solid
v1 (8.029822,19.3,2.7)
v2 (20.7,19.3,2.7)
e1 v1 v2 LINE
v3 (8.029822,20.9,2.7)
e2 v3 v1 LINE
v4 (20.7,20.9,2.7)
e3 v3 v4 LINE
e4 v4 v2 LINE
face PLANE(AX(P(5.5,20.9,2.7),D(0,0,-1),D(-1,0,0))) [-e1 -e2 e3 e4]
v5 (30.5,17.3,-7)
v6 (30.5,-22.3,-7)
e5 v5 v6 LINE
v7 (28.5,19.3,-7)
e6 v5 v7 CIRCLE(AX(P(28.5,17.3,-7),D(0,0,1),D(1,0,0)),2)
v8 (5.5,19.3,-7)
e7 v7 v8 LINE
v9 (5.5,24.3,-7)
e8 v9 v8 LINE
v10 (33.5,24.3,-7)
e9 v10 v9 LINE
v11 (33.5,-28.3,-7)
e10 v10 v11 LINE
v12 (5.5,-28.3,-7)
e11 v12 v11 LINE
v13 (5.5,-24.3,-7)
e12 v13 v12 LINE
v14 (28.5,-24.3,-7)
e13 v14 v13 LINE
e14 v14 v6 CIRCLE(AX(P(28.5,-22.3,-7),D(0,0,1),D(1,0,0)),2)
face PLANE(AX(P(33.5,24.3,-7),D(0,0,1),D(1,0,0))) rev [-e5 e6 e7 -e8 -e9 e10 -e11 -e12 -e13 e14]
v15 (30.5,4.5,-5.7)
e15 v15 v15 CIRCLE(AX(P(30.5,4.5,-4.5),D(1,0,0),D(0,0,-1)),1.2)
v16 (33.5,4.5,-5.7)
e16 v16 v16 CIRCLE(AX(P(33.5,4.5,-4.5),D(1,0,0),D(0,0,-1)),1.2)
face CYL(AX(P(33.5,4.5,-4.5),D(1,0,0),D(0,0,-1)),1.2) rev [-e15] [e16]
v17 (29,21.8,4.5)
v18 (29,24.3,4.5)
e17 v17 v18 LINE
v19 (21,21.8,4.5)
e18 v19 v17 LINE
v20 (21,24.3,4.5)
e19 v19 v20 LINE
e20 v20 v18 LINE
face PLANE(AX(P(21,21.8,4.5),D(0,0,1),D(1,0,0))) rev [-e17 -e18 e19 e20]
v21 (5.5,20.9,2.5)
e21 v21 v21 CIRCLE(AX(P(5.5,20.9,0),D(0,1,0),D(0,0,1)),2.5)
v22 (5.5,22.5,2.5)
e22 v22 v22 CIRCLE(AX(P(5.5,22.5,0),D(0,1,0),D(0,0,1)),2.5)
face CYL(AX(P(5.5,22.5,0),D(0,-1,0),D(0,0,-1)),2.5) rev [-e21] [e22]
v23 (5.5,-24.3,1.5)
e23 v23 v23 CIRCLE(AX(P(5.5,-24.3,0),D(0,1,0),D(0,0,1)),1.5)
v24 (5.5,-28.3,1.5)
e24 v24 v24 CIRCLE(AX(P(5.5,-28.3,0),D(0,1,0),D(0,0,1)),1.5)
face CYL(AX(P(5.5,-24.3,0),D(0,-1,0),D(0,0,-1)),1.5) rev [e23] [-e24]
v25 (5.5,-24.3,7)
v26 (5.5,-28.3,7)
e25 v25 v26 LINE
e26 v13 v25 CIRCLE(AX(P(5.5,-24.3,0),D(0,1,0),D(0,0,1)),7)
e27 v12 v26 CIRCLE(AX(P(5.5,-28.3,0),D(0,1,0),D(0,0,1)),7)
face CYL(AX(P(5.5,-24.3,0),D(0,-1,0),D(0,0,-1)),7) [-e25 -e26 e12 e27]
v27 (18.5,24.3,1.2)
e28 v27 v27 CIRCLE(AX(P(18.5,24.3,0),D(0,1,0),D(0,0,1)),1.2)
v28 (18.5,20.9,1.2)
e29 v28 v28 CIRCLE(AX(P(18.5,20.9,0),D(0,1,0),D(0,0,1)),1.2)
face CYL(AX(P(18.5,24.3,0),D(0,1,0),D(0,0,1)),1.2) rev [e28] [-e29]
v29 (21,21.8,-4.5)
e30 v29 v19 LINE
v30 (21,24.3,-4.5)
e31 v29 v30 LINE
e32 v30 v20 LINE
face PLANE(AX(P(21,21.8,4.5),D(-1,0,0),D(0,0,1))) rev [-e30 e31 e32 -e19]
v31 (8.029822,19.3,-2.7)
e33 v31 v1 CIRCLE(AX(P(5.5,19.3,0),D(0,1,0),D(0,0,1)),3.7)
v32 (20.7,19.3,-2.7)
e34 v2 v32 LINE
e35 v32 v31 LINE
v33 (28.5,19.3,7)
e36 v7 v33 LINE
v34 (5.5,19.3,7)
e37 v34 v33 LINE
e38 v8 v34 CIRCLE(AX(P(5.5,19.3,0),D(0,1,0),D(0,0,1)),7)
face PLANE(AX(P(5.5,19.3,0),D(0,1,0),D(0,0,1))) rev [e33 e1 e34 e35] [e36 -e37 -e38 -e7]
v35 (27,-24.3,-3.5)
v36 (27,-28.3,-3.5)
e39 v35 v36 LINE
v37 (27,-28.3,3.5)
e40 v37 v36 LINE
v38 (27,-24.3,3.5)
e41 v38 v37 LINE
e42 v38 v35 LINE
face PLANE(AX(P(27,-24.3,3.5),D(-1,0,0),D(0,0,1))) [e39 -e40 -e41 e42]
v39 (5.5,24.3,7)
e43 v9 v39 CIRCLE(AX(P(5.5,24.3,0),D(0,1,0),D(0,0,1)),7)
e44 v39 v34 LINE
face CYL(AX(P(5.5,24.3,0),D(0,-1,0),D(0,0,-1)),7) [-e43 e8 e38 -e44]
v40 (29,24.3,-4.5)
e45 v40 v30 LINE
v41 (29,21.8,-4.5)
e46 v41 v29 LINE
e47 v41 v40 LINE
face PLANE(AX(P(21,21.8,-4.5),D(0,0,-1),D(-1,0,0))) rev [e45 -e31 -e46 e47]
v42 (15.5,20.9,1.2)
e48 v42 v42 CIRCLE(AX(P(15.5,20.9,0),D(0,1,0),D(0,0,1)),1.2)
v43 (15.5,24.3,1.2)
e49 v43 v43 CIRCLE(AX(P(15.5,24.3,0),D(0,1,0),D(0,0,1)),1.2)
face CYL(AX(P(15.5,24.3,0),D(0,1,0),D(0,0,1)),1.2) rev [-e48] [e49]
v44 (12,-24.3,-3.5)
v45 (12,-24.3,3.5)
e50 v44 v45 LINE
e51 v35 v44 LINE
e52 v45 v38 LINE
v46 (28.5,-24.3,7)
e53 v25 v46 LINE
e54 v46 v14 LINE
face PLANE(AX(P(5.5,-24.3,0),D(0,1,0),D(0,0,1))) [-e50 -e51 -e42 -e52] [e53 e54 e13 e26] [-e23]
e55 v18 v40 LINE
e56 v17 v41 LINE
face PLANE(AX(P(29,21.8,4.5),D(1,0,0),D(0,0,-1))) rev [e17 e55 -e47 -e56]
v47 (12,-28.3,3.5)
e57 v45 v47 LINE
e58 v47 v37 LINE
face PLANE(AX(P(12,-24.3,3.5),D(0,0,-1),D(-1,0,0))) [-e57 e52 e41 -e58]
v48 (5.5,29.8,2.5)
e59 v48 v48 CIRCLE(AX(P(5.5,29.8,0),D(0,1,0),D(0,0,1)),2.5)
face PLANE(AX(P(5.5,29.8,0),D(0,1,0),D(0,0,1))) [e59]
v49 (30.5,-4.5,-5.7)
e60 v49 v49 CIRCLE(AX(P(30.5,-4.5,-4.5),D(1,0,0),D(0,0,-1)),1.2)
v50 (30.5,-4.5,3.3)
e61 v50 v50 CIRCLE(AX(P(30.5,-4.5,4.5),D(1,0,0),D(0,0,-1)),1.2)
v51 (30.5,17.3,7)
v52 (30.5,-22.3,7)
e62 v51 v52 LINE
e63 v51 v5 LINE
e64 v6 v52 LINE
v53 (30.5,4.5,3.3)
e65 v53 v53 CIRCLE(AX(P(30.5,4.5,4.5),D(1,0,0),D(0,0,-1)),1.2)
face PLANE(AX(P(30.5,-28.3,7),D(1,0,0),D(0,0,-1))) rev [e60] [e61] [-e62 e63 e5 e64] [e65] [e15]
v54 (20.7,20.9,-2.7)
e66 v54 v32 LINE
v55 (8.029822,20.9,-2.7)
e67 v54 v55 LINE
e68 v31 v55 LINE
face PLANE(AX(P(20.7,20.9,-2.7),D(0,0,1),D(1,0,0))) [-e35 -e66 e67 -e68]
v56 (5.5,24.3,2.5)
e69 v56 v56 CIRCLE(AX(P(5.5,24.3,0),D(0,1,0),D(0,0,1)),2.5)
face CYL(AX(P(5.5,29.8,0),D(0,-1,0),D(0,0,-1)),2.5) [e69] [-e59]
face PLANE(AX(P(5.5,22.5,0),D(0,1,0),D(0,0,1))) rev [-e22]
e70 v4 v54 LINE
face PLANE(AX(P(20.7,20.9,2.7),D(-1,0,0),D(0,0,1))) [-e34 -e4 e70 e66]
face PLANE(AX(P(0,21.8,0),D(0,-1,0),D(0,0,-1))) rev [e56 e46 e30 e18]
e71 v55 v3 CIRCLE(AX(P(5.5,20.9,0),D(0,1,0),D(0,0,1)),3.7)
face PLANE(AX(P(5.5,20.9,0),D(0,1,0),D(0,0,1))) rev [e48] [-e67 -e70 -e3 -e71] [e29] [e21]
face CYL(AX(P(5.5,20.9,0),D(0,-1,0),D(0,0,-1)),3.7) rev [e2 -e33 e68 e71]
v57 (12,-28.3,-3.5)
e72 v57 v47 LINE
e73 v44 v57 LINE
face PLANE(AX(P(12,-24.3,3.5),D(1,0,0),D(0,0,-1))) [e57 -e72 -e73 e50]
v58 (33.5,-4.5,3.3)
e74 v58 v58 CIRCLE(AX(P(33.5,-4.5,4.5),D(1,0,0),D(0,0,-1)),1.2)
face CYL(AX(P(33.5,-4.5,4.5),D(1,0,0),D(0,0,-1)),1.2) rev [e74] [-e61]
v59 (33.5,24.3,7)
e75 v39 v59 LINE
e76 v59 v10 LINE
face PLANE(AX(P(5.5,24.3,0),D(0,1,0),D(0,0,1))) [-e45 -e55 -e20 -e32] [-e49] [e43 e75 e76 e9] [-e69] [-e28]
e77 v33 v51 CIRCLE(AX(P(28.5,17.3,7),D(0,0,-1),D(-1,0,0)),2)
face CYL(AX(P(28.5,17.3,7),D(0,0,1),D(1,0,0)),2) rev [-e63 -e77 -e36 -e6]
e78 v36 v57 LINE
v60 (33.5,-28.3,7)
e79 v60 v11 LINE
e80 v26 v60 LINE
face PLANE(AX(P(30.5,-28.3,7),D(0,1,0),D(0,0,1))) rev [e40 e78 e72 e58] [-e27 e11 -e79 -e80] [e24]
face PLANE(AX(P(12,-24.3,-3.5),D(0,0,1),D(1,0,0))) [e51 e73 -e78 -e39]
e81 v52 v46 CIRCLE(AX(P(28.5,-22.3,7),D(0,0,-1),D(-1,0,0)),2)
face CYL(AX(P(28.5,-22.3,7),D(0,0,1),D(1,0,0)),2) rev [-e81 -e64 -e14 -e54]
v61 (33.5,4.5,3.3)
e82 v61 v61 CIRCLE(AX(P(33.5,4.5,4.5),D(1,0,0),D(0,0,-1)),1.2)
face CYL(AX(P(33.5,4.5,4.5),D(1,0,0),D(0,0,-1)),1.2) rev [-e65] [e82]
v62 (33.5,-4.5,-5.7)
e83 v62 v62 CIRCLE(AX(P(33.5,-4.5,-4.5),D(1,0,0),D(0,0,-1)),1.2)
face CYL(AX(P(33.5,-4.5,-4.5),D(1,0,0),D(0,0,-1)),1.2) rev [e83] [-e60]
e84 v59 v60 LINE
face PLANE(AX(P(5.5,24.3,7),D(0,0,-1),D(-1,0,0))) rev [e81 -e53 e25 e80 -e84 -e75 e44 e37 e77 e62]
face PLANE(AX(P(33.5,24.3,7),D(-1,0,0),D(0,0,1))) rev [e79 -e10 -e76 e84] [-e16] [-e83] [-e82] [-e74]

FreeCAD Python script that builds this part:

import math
import FreeCAD as App
import Part
import Sketcher
from FreeCAD import Vector


def edges_at(feature, points):
    """Names of the edges that pass closest to the given points."""
    edges = feature.Shape.Edges
    near = lambda p: min(range(len(edges)), key=lambda i: edges[i].distToShape(Part.Vertex(*p))[0])
    return sorted({f"Edge{near(p) + 1}" for p in points})

doc = App.newDocument("Part")
body = doc.addObject("PartDesign::Body", "Body")

# Sketch on XZ plane
sketch1 = body.newObject("Sketcher::SketchObject", "Sketch")
sketch1.AttachmentSupport = (doc.getObject("XZ_Plane"), [""])
sketch1.MapMode = "FlatFace"
sketch1.AttachmentOffset = App.Placement(Vector(0, 0, -19.3), App.Rotation())
sketch1.addGeometry([
    Part.LineSegment(Vector(6, 7, 0), Vector(34, 7, 0)),
    Part.LineSegment(Vector(34, 7, 0), Vector(34, -7, 0)),
    Part.LineSegment(Vector(34, -7, 0), Vector(6, -7, 0)),
    Part.ArcOfCircle(Part.Circle(Vector(6, 0, 0), Vector(0, 0, 1), 7), math.radians(90), math.radians(270)),
], False)
sketch1.addConstraint([
    Sketcher.Constraint("Coincident", 0, 2, 1, 1),
    Sketcher.Constraint("Coincident", 1, 2, 2, 1),
    Sketcher.Constraint("Tangent", 2, 2, 3, 2),
    Sketcher.Constraint("Tangent", 3, 1, 0, 1),
    Sketcher.Constraint("Horizontal", 0),
    Sketcher.Constraint("Vertical", 1),
    Sketcher.Constraint("Horizontal", 2),
    Sketcher.Constraint("PointOnObject", 3, 3, -1),
    Sketcher.Constraint("Radius", 3, 7.0),
    Sketcher.Constraint("DistanceX", 0, 1, 0, 2, 28.0),
    Sketcher.Constraint("DistanceX", -1, 1, 3, 3, 5.5),
])
pad1 = body.newObject("PartDesign::Pad", "Pad")
pad1.Profile = sketch1
pad1.Length = 5
pad1.Reversed = True
body2 = doc.addObject("PartDesign::Body", "Body001")

# Sketch on XZ plane
sketch2 = body2.newObject("Sketcher::SketchObject", "Sketch001")
sketch2.AttachmentSupport = (doc.getObject("XZ_Plane001"), [""])
sketch2.MapMode = "FlatFace"
sketch2.AttachmentOffset = App.Placement(Vector(0, 0, 28.3), App.Rotation())
sketch2.addGeometry([
    Part.LineSegment(Vector(6, 7, 0), Vector(34, 7, 0)),
    Part.LineSegment(Vector(34, 7, 0), Vector(34, -7, 0)),
    Part.LineSegment(Vector(34, -7, 0), Vector(6, -7, 0)),
    Part.ArcOfCircle(Part.Circle(Vector(6, 0, 0), Vector(0, 0, 1), 7), math.radians(90), math.radians(270)),
], False)
sketch2.addConstraint([
    Sketcher.Constraint("Coincident", 0, 2, 1, 1),
    Sketcher.Constraint("Coincident", 1, 2, 2, 1),
    Sketcher.Constraint("Tangent", 2, 2, 3, 2),
    Sketcher.Constraint("Tangent", 3, 1, 0, 1),
    Sketcher.Constraint("Horizontal", 0),
    Sketcher.Constraint("Vertical", 1),
    Sketcher.Constraint("Horizontal", 2),
    Sketcher.Constraint("PointOnObject", 3, 3, -1),
    Sketcher.Constraint("Radius", 3, 7.0),
    Sketcher.Constraint("DistanceX", 0, 1, 0, 2, 28.0),
    Sketcher.Constraint("DistanceX", -1, 1, 3, 3, 5.5),
])
pad2 = body2.newObject("PartDesign::Pad", "Pad001")
pad2.Profile = sketch2
pad2.Length = 4
pad2.Reversed = True
body.AllowCompound = True
doc.recompute()

boolean = body.newObject("PartDesign::Boolean", "Boolean")
boolean.Type = "Fuse"
boolean.addObjects([body2])

# Sketch on XY plane
sketch3 = body.newObject("Sketcher::SketchObject", "Sketch002")
sketch3.AttachmentSupport = (doc.getObject("XY_Plane"), [""])
sketch3.MapMode = "FlatFace"
sketch3.addGeometry([
    Part.LineSegment(Vector(30.5, 24.3, 0), Vector(30.5, -28.3, 0)),
    Part.LineSegment(Vector(30.5, -28.3, 0), Vector(33.5, -28.3, 0)),
    Part.LineSegment(Vector(33.5, -28.3, 0), Vector(33.5, 24.3, 0)),
    Part.LineSegment(Vector(33.5, 24.3, 0), Vector(30.5, 24.3, 0)),
], False)
sketch3.addConstraint([
    Sketcher.Constraint("Coincident", 0, 2, 1, 1),
    Sketcher.Constraint("Coincident", 1, 2, 2, 1),
    Sketcher.Constraint("Coincident", 2, 2, 3, 1),
    Sketcher.Constraint("Coincident", 3, 2, 0, 1),
    Sketcher.Constraint("Vertical", 0),
    Sketcher.Constraint("Horizontal", 1),
    Sketcher.Constraint("Vertical", 2),
    Sketcher.Constraint("Horizontal", 3),
    Sketcher.Constraint("DistanceX", 1, 1, 1, 2, 3.0),
    Sketcher.Constraint("DistanceY", 0, 2, 0, 1, 52.6),
    Sketcher.Constraint("DistanceX", -1, 1, 0, 2, 30.5),
    Sketcher.Constraint("DistanceY", 0, 2, -1, 1, 28.3),
])
pad3 = body.newObject("PartDesign::Pad", "Pad002")
pad3.Profile = sketch3
pad3.Length = 14
pad3.Midplane = True

# Sketch on XZ plane
sketch4 = body.newObject("Sketcher::SketchObject", "Sketch003")
sketch4.AttachmentSupport = (doc.getObject("XZ_Plane"), [""])
sketch4.MapMode = "FlatFace"
sketch4.AttachmentOffset = App.Placement(Vector(0, 0, -24.3), App.Rotation())
sketch4.addGeometry(Part.Circle(Vector(5.5, 0, 0), Vector(0, 0, 1), 2.5), False)
sketch4.addConstraint([
    Sketcher.Constraint("PointOnObject", 0, 3, -1),
    Sketcher.Constraint("Diameter", 0, 5.0),
    Sketcher.Constraint("DistanceX", -1, 1, 0, 3, 5.5),
])
pad4 = body.newObject("PartDesign::Pad", "Pad003")
pad4.Profile = sketch4
pad4.Length = 5.5
pad4.Reversed = True

# Sketch on XZ plane
sketch5 = body.newObject("Sketcher::SketchObject", "Sketch004")
sketch5.AttachmentSupport = (doc.getObject("XZ_Plane"), [""])
sketch5.MapMode = "FlatFace"
sketch5.AttachmentOffset = App.Placement(Vector(0, 0, -19.3), App.Rotation())
sketch5.addGeometry(Part.Circle(Vector(5.5, 0, 0), Vector(0, 0, 1), 3.7), False)
sketch5.addConstraint([
    Sketcher.Constraint("PointOnObject", 0, 3, -1),
    Sketcher.Constraint("Diameter", 0, 7.4),
    Sketcher.Constraint("DistanceX", -1, 1, 0, 3, 5.5),
])
pocket1 = body.newObject("PartDesign::Pocket", "Pocket")
pocket1.Profile = sketch5
pocket1.Length = 1.6

# Sketch on XZ plane
sketch6 = body.newObject("Sketcher::SketchObject", "Sketch005")
sketch6.AttachmentSupport = (doc.getObject("XZ_Plane"), [""])
sketch6.MapMode = "FlatFace"
sketch6.AttachmentOffset = App.Placement(Vector(0, 0, -19.3), App.Rotation())
sketch6.addGeometry([
    Part.LineSegment(Vector(5.5, 2.7, 0), Vector(20.7, 2.7, 0)),
    Part.LineSegment(Vector(20.7, 2.7, 0), Vector(20.7, -2.7, 0)),
    Part.LineSegment(Vector(20.7, -2.7, 0), Vector(5.5, -2.7, 0)),
    Part.ArcOfCircle(Part.Circle(Vector(5.5, 0, 0), Vector(0, 0, 1), 2.7), math.radians(90), math.radians(270)),
], False)
sketch6.addConstraint([
    Sketcher.Constraint("Coincident", 0, 2, 1, 1),
    Sketcher.Constraint("Coincident", 1, 2, 2, 1),
    Sketcher.Constraint("Tangent", 2, 2, 3, 2),
    Sketcher.Constraint("Tangent", 3, 1, 0, 1),
    Sketcher.Constraint("Horizontal", 0),
    Sketcher.Constraint("Vertical", 1),
    Sketcher.Constraint("Horizontal", 2),
    Sketcher.Constraint("PointOnObject", 3, 3, -1),
    Sketcher.Constraint("Radius", 3, 2.7),
    Sketcher.Constraint("DistanceX", 0, 1, 0, 2, 15.2),
    Sketcher.Constraint("DistanceX", -1, 1, 3, 3, 5.5),
])
pocket2 = body.newObject("PartDesign::Pocket", "Pocket001")
pocket2.Profile = sketch6
pocket2.Length = 1.6

# Sketch on XZ plane
sketch7 = body.newObject("Sketcher::SketchObject", "Sketch006")
sketch7.AttachmentSupport = (doc.getObject("XZ_Plane"), [""])
sketch7.MapMode = "FlatFace"
sketch7.AttachmentOffset = App.Placement(Vector(0, 0, -20.9), App.Rotation())
sketch7.addGeometry(Part.Circle(Vector(5.5, 0, 0), Vector(0, 0, 1), 2.5), False)
sketch7.addConstraint([
    Sketcher.Constraint("PointOnObject", 0, 3, -1),
    Sketcher.Constraint("Diameter", 0, 5.0),
    Sketcher.Constraint("DistanceX", -1, 1, 0, 3, 5.5),
])
pocket3 = body.newObject("PartDesign::Pocket", "Pocket002")
pocket3.Profile = sketch7
pocket3.Length = 1.6

# Sketch on XZ plane
sketch8 = body.newObject("Sketcher::SketchObject", "Sketch007")
sketch8.AttachmentSupport = (doc.getObject("XZ_Plane"), [""])
sketch8.MapMode = "FlatFace"
sketch8.AttachmentOffset = App.Placement(Vector(0, 0, 28.3), App.Rotation())
sketch8.addGeometry(Part.Circle(Vector(5.5, 0, 0), Vector(0, 0, 1), 1.5), False)
sketch8.addConstraint([
    Sketcher.Constraint("PointOnObject", 0, 3, -1),
    Sketcher.Constraint("Diameter", 0, 3.0),
    Sketcher.Constraint("DistanceX", -1, 1, 0, 3, 5.5),
])
pocket4 = body.newObject("PartDesign::Pocket", "Pocket003")
pocket4.Profile = sketch8
pocket4.Length = 4

# Sketch on XZ plane
sketch9 = body.newObject("Sketcher::SketchObject", "Sketch008")
sketch9.AttachmentSupport = (doc.getObject("XZ_Plane"), [""])
sketch9.MapMode = "FlatFace"
sketch9.AttachmentOffset = App.Placement(Vector(0, 0, -24.3), App.Rotation())
sketch9.addGeometry(Part.Circle(Vector(15.5, 0, 0), Vector(0, 0, 1), 1.2), False)
sketch9.addConstraint([
    Sketcher.Constraint("PointOnObject", 0, 3, -1),
    Sketcher.Constraint("Diameter", 0, 2.4),
    Sketcher.Constraint("DistanceX", -1, 1, 0, 3, 15.5),
])
doc.recompute()
hole = body.newObject("PartDesign::Hole", "Hole")
hole.Profile = sketch9
hole.ThreadType = "None"
hole.Diameter = 2.4
hole.DepthType = "Dimension"
hole.Depth = 5
hole.DrillPoint = "Angled"
hole.DrillPointAngle = 118
hole.Reversed = True

# Sketch on XZ plane
sketch10 = body.newObject("Sketcher::SketchObject", "Sketch009")
sketch10.AttachmentSupport = (doc.getObject("XZ_Plane"), [""])
sketch10.MapMode = "FlatFace"
sketch10.AttachmentOffset = App.Placement(Vector(0, 0, -24.3), App.Rotation())
sketch10.addGeometry(Part.Circle(Vector(18.5, 0, 0), Vector(0, 0, 1), 1.2), False)
sketch10.addConstraint([
    Sketcher.Constraint("PointOnObject", 0, 3, -1),
    Sketcher.Constraint("Diameter", 0, 2.4),
    Sketcher.Constraint("DistanceX", -1, 1, 0, 3, 18.5),
])
doc.recompute()
hole2 = body.newObject("PartDesign::Hole", "Hole001")
hole2.Profile = sketch10
hole2.ThreadType = "None"
hole2.Diameter = 2.4
hole2.DepthType = "Dimension"
hole2.Depth = 5
hole2.DrillPoint = "Angled"
hole2.DrillPointAngle = 118
hole2.Reversed = True

# Sketch on YZ plane
sketch11 = body.newObject("Sketcher::SketchObject", "Sketch010")
sketch11.AttachmentSupport = (doc.getObject("YZ_Plane"), [""])
sketch11.MapMode = "FlatFace"
sketch11.AttachmentOffset = App.Placement(Vector(0, 0, 33.5), App.Rotation())
sketch11.addGeometry(Part.Circle(Vector(-4.5, -4.5, 0), Vector(0, 0, 1), 1.2), False)
sketch11.addConstraint([
    Sketcher.Constraint("Diameter", 0, 2.4),
    Sketcher.Constraint("DistanceX", 0, 3, -1, 1, 4.5),
    Sketcher.Constraint("DistanceY", 0, 3, -1, 1, 4.5),
])
doc.recompute()
hole3 = body.newObject("PartDesign::Hole", "Hole002")
hole3.Profile = sketch11
hole3.ThreadType = "None"
hole3.Diameter = 2.4
hole3.DepthType = "Dimension"
hole3.Depth = 35
hole3.DrillPoint = "Flat"

# Sketch on YZ plane
sketch12 = body.newObject("Sketcher::SketchObject", "Sketch011")
sketch12.AttachmentSupport = (doc.getObject("YZ_Plane"), [""])
sketch12.MapMode = "FlatFace"
sketch12.AttachmentOffset = App.Placement(Vector(0, 0, 33.5), App.Rotation())
sketch12.addGeometry(Part.Circle(Vector(-4.5, 4.5, 0), Vector(0, 0, 1), 1.2), False)
sketch12.addConstraint([
    Sketcher.Constraint("Diameter", 0, 2.4),
    Sketcher.Constraint("DistanceX", 0, 3, -1, 1, 4.5),
    Sketcher.Constraint("DistanceY", -1, 1, 0, 3, 4.5),
])
doc.recompute()
hole4 = body.newObject("PartDesign::Hole", "Hole003")
hole4.Profile = sketch12
hole4.ThreadType = "None"
hole4.Diameter = 2.4
hole4.DepthType = "Dimension"
hole4.Depth = 35
hole4.DrillPoint = "Flat"

# Sketch on YZ plane
sketch13 = body.newObject("Sketcher::SketchObject", "Sketch012")
sketch13.AttachmentSupport = (doc.getObject("YZ_Plane"), [""])
sketch13.MapMode = "FlatFace"
sketch13.AttachmentOffset = App.Placement(Vector(0, 0, 33.5), App.Rotation())
sketch13.addGeometry(Part.Circle(Vector(4.5, -4.5, 0), Vector(0, 0, 1), 1.2), False)
sketch13.addConstraint([
    Sketcher.Constraint("Diameter", 0, 2.4),
    Sketcher.Constraint("DistanceX", -1, 1, 0, 3, 4.5),
    Sketcher.Constraint("DistanceY", 0, 3, -1, 1, 4.5),
])
doc.recompute()
hole5 = body.newObject("PartDesign::Hole", "Hole004")
hole5.Profile = sketch13
hole5.ThreadType = "None"
hole5.Diameter = 2.4
hole5.DepthType = "Dimension"
hole5.Depth = 35
hole5.DrillPoint = "Flat"

# Sketch on YZ plane
sketch14 = body.newObject("Sketcher::SketchObject", "Sketch013")
sketch14.AttachmentSupport = (doc.getObject("YZ_Plane"), [""])
sketch14.MapMode = "FlatFace"
sketch14.AttachmentOffset = App.Placement(Vector(0, 0, 33.5), App.Rotation())
sketch14.addGeometry(Part.Circle(Vector(4.5, 4.5, 0), Vector(0, 0, 1), 1.2), False)
sketch14.addConstraint([
    Sketcher.Constraint("Diameter", 0, 2.4),
    Sketcher.Constraint("DistanceX", -1, 1, 0, 3, 4.5),
    Sketcher.Constraint("DistanceY", -1, 1, 0, 3, 4.5),
])
doc.recompute()
hole6 = body.newObject("PartDesign::Hole", "Hole005")
hole6.Profile = sketch14
hole6.ThreadType = "None"
hole6.Diameter = 2.4
hole6.DepthType = "Dimension"
hole6.Depth = 35
hole6.DrillPoint = "Flat"
doc.recompute()

fillet = body.newObject("PartDesign::Fillet", "Fillet")
fillet.Base = (hole6, edges_at(hole6, [(30.5, 19.3, 0), (30.5, -24.3, 0)]))
fillet.Radius = 2

# Sketch on XZ plane
sketch15 = body.newObject("Sketcher::SketchObject", "Sketch014")
sketch15.AttachmentSupport = (doc.getObject("XZ_Plane"), [""])
sketch15.MapMode = "FlatFace"
sketch15.AttachmentOffset = App.Placement(Vector(0, 0, 28.3), App.Rotation())
sketch15.addGeometry([
    Part.LineSegment(Vector(12, -4, 0), Vector(12, 4, 0)),
    Part.LineSegment(Vector(12, 4, 0), Vector(27, 4, 0)),
    Part.LineSegment(Vector(27, 4, 0), Vector(27, -4, 0)),
    Part.LineSegment(Vector(27, -4, 0), Vector(12, -4, 0)),
], False)
sketch15.addConstraint([
    Sketcher.Constraint("Coincident", 0, 2, 1, 1),
    Sketcher.Constraint("Coincident", 1, 2, 2, 1),
    Sketcher.Constraint("Coincident", 2, 2, 3, 1),
    Sketcher.Constraint("Coincident", 3, 2, 0, 1),
    Sketcher.Constraint("Vertical", 0),
    Sketcher.Constraint("Horizontal", 1),
    Sketcher.Constraint("Vertical", 2),
    Sketcher.Constraint("Horizontal", 3),
    Sketcher.Constraint("DistanceX", 1, 1, 1, 2, 15.0),
    Sketcher.Constraint("DistanceY", 0, 1, 0, 2, 7.0),
    Sketcher.Constraint("DistanceX", -1, 1, 0, 2, 12.0),
    Sketcher.Constraint("DistanceY", -1, 1, 0, 2, 3.5),
])
pocket5 = body.newObject("PartDesign::Pocket", "Pocket004")
pocket5.Profile = sketch15
pocket5.Length = 4

# Sketch on XZ plane
sketch16 = body.newObject("Sketcher::SketchObject", "Sketch015")
sketch16.AttachmentSupport = (doc.getObject("XZ_Plane"), [""])
sketch16.MapMode = "FlatFace"
sketch16.AttachmentOffset = App.Placement(Vector(0, 0, -24.3), App.Rotation())
sketch16.addGeometry([
    Part.LineSegment(Vector(21, -4, 0), Vector(21, 4, 0)),
    Part.LineSegment(Vector(21, 4, 0), Vector(29, 4, 0)),
    Part.LineSegment(Vector(29, 4, 0), Vector(29, -4, 0)),
    Part.LineSegment(Vector(29, -4, 0), Vector(21, -4, 0)),
], False)
sketch16.addConstraint([
    Sketcher.Constraint("Coincident", 0, 2, 1, 1),
    Sketcher.Constraint("Coincident", 1, 2, 2, 1),
    Sketcher.Constraint("Coincident", 2, 2, 3, 1),
    Sketcher.Constraint("Coincident", 3, 2, 0, 1),
    Sketcher.Constraint("Vertical", 0),
    Sketcher.Constraint("Horizontal", 1),
    Sketcher.Constraint("Vertical", 2),
    Sketcher.Constraint("Horizontal", 3),
    Sketcher.Constraint("DistanceX", 1, 1, 1, 2, 8.0),
    Sketcher.Constraint("DistanceY", 0, 1, 0, 2, 9.0),
    Sketcher.Constraint("DistanceX", -1, 1, 0, 2, 21.0),
    Sketcher.Constraint("DistanceY", -1, 1, 0, 2, 4.5),
])
pocket6 = body.newObject("PartDesign::Pocket", "Pocket005")
pocket6.Profile = sketch16
pocket6.Length = 2.5
pocket6.Reversed = True

doc.recompute()
